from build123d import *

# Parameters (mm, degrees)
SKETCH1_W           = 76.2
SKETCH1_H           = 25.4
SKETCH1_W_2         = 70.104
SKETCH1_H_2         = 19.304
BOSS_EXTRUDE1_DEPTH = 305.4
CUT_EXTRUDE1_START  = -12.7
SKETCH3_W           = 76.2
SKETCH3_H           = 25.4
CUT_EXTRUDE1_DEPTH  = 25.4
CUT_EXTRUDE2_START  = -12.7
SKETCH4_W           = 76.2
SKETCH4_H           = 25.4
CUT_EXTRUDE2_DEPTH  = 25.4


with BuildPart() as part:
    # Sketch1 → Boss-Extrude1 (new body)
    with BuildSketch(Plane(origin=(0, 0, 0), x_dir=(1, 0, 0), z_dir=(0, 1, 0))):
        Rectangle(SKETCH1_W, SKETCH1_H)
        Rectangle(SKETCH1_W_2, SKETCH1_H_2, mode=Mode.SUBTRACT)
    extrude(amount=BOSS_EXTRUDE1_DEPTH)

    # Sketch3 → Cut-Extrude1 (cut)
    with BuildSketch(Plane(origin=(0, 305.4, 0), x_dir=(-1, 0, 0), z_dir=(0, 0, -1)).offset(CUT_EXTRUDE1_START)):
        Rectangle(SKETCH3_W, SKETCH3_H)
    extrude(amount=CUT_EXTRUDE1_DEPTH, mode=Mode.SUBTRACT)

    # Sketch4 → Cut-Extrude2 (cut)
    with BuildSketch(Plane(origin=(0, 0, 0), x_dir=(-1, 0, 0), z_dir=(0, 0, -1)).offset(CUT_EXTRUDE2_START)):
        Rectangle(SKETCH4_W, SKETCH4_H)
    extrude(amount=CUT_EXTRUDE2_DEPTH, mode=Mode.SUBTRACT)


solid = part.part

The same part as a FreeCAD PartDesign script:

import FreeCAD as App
import Part
import Sketcher
from FreeCAD import Vector
Q = App.Units.Quantity

doc = App.newDocument("Part")
params = doc.addObject("Spreadsheet::Sheet", "Params")
for row, (alias, value) in enumerate([
    ("sketch1_width", "3 in"),
    ("sketch1_height", "1 in"),
    ("sketch1_width2", "2.76 in"),
    ("sketch1_height2", "0.76 in"),
    ("pad1_length", "305.4 mm"),
    ("sketch2_width", "3 in"),
    ("sketch2_height", "1 in"),
    ("pocket1_length", "1 in"),
    ("sketch3_width", "3 in"),
    ("sketch3_height", "1 in"),
    ("pocket2_length", "1 in"),
], start=1):
    params.set(f"A{row}", alias)
    params.set(f"B{row}", "=" + value)
    params.setAlias(f"B{row}", alias)

body = doc.addObject("PartDesign::Body", "Body")

# Sketch on XZ plane
sketch1 = doc.addObject("Sketcher::SketchObject", "Sketch")
body.addObject(sketch1)
sketch1.AttachmentSupport = (doc.XZ_Plane, [""])
sketch1.MapMode = "FlatFace"
sketch1.addGeometry([
    Part.LineSegment(Vector(-38, -13, 0), Vector(-38, 13, 0)),  # 0
    Part.LineSegment(Vector(-38, 13, 0), Vector(38, 13, 0)),  # 1
    Part.LineSegment(Vector(38, 13, 0), Vector(38, -13, 0)),  # 2
    Part.LineSegment(Vector(38, -13, 0), Vector(-38, -13, 0)),  # 3
    Part.LineSegment(Vector(35, 10, 0), Vector(-35, 10, 0)),  # 4
    Part.LineSegment(Vector(-35, 10, 0), Vector(-35, -10, 0)),  # 5
    Part.LineSegment(Vector(-35, -10, 0), Vector(35, -10, 0)),  # 6
    Part.LineSegment(Vector(35, -10, 0), Vector(35, 10, 0)),  # 7
], False)
sketch1.addConstraint([
    Sketcher.Constraint("Coincident", 0, 2, 1, 1),
    Sketcher.Constraint("Coincident", 1, 2, 2, 1),
    Sketcher.Constraint("Coincident", 2, 2, 3, 1),
    Sketcher.Constraint("Coincident", 3, 2, 0, 1),
    Sketcher.Constraint("Coincident", 4, 2, 5, 1),
    Sketcher.Constraint("Coincident", 5, 2, 6, 1),
    Sketcher.Constraint("Coincident", 6, 2, 7, 1),
    Sketcher.Constraint("Coincident", 7, 2, 4, 1),
    Sketcher.Constraint("Vertical", 0),
    Sketcher.Constraint("Horizontal", 1),
    Sketcher.Constraint("Vertical", 2),
    Sketcher.Constraint("Horizontal", 3),
    Sketcher.Constraint("Horizontal", 4),
    Sketcher.Constraint("Vertical", 5),
    Sketcher.Constraint("Horizontal", 6),
    Sketcher.Constraint("Vertical", 7),
    Sketcher.Constraint("Symmetric", 0, 2, 2, 2, -1, 1),
    Sketcher.Constraint("Symmetric", 4, 2, 6, 2, -1, 1),
    Sketcher.Constraint("DistanceX", 1, 1, 1, 2, Q("3 in")),
    Sketcher.Constraint("DistanceY", 0, 1, 0, 2, Q("1 in")),
    Sketcher.Constraint("DistanceX", 4, 2, 4, 1, Q("2.76 in")),
    Sketcher.Constraint("DistanceY", 5, 2, 5, 1, Q("0.76 in")),
])
sketch1.setExpression("Constraints[18]", "Params.sketch1_width")
sketch1.setExpression("Constraints[19]", "Params.sketch1_height")
sketch1.setExpression("Constraints[20]", "Params.sketch1_width2")
sketch1.setExpression("Constraints[21]", "Params.sketch1_height2")
pad1 = doc.addObject("PartDesign::Pad", "Pad")
body.addObject(pad1)
pad1.Profile = sketch1
pad1.setExpression("Length", "Params.pad1_length")
pad1.Reversed = True

# Sketch on XY plane
sketch2 = doc.addObject("Sketcher::SketchObject", "Sketch001")
body.addObject(sketch2)
sketch2.AttachmentSupport = (doc.XY_Plane, [""])
sketch2.MapMode = "FlatFace"
sketch2.AttachmentOffset = App.Placement(Vector(0, 0, 0.5 * 25.4), App.Rotation())
sketch2.addGeometry([
    Part.LineSegment(Vector(38, 318, 0), Vector(38, 293, 0)),
    Part.LineSegment(Vector(38, 293, 0), Vector(-38, 293, 0)),
    Part.LineSegment(Vector(-38, 293, 0), Vector(-38, 318, 0)),
    Part.LineSegment(Vector(-38, 318, 0), Vector(38, 318, 0)),
], False)
sketch2.addConstraint([
    Sketcher.Constraint("Coincident", 0, 2, 1, 1),
    Sketcher.Constraint("Coincident", 1, 2, 2, 1),
    Sketcher.Constraint("Coincident", 2, 2, 3, 1),
    Sketcher.Constraint("Coincident", 3, 2, 0, 1),
    Sketcher.Constraint("Vertical", 0),
    Sketcher.Constraint("Horizontal", 1),
    Sketcher.Constraint("Vertical", 2),
    Sketcher.Constraint("Horizontal", 3),
    Sketcher.Constraint("DistanceX", 1, 2, 1, 1, Q("3 in")),
    Sketcher.Constraint("DistanceY", 0, 2, 0, 1, Q("1 in")),
    Sketcher.Constraint("DistanceX", -1, 1, 0, 2, Q("1.5 in")),
    Sketcher.Constraint("DistanceY", -1, 1, 0, 2, Q("292.7 mm")),
])
sketch2.setExpression("Constraints[8]", "Params.sketch2_width")
sketch2.setExpression("Constraints[9]", "Params.sketch2_height")
pocket1 = doc.addObject("PartDesign::Pocket", "Pocket")
body.addObject(pocket1)
pocket1.Profile = sketch2
pocket1.setExpression("Length", "Params.pocket1_length")

# Sketch on XY plane
sketch3 = doc.addObject("Sketcher::SketchObject", "Sketch002")
body.addObject(sketch3)
sketch3.AttachmentSupport = (doc.XY_Plane, [""])
sketch3.MapMode = "FlatFace"
sketch3.AttachmentOffset = App.Placement(Vector(0, 0, 0.5 * 25.4), App.Rotation())
sketch3.addGeometry([
    Part.LineSegment(Vector(38, 13, 0), Vector(38, -13, 0)),
    Part.LineSegment(Vector(38, -13, 0), Vector(-38, -13, 0)),
    Part.LineSegment(Vector(-38, -13, 0), Vector(-38, 13, 0)),
    Part.LineSegment(Vector(-38, 13, 0), Vector(38, 13, 0)),
], False)
sketch3.addConstraint([
    Sketcher.Constraint("Coincident", 0, 2, 1, 1),
    Sketcher.Constraint("Coincident", 1, 2, 2, 1),
    Sketcher.Constraint("Coincident", 2, 2, 3, 1),
    Sketcher.Constraint("Coincident", 3, 2, 0, 1),
    Sketcher.Constraint("Vertical", 0),
    Sketcher.Constraint("Horizontal", 1),
    Sketcher.Constraint("Vertical", 2),
    Sketcher.Constraint("Horizontal", 3),
    Sketcher.Constraint("Symmetric", 0, 2, 2, 2, -1, 1),
    Sketcher.Constraint("DistanceX", 1, 2, 1, 1, Q("3 in")),
    Sketcher.Constraint("DistanceY", 0, 2, 0, 1, Q("1 in")),
])
sketch3.setExpression("Constraints[9]", "Params.sketch3_width")
sketch3.setExpression("Constraints[10]", "Params.sketch3_height")
pocket2 = doc.addObject("PartDesign::Pocket", "Pocket001")
body.addObject(pocket2)
pocket2.Profile = sketch3
pocket2.setExpression("Length", "Params.pocket2_length")

doc.recompute()
